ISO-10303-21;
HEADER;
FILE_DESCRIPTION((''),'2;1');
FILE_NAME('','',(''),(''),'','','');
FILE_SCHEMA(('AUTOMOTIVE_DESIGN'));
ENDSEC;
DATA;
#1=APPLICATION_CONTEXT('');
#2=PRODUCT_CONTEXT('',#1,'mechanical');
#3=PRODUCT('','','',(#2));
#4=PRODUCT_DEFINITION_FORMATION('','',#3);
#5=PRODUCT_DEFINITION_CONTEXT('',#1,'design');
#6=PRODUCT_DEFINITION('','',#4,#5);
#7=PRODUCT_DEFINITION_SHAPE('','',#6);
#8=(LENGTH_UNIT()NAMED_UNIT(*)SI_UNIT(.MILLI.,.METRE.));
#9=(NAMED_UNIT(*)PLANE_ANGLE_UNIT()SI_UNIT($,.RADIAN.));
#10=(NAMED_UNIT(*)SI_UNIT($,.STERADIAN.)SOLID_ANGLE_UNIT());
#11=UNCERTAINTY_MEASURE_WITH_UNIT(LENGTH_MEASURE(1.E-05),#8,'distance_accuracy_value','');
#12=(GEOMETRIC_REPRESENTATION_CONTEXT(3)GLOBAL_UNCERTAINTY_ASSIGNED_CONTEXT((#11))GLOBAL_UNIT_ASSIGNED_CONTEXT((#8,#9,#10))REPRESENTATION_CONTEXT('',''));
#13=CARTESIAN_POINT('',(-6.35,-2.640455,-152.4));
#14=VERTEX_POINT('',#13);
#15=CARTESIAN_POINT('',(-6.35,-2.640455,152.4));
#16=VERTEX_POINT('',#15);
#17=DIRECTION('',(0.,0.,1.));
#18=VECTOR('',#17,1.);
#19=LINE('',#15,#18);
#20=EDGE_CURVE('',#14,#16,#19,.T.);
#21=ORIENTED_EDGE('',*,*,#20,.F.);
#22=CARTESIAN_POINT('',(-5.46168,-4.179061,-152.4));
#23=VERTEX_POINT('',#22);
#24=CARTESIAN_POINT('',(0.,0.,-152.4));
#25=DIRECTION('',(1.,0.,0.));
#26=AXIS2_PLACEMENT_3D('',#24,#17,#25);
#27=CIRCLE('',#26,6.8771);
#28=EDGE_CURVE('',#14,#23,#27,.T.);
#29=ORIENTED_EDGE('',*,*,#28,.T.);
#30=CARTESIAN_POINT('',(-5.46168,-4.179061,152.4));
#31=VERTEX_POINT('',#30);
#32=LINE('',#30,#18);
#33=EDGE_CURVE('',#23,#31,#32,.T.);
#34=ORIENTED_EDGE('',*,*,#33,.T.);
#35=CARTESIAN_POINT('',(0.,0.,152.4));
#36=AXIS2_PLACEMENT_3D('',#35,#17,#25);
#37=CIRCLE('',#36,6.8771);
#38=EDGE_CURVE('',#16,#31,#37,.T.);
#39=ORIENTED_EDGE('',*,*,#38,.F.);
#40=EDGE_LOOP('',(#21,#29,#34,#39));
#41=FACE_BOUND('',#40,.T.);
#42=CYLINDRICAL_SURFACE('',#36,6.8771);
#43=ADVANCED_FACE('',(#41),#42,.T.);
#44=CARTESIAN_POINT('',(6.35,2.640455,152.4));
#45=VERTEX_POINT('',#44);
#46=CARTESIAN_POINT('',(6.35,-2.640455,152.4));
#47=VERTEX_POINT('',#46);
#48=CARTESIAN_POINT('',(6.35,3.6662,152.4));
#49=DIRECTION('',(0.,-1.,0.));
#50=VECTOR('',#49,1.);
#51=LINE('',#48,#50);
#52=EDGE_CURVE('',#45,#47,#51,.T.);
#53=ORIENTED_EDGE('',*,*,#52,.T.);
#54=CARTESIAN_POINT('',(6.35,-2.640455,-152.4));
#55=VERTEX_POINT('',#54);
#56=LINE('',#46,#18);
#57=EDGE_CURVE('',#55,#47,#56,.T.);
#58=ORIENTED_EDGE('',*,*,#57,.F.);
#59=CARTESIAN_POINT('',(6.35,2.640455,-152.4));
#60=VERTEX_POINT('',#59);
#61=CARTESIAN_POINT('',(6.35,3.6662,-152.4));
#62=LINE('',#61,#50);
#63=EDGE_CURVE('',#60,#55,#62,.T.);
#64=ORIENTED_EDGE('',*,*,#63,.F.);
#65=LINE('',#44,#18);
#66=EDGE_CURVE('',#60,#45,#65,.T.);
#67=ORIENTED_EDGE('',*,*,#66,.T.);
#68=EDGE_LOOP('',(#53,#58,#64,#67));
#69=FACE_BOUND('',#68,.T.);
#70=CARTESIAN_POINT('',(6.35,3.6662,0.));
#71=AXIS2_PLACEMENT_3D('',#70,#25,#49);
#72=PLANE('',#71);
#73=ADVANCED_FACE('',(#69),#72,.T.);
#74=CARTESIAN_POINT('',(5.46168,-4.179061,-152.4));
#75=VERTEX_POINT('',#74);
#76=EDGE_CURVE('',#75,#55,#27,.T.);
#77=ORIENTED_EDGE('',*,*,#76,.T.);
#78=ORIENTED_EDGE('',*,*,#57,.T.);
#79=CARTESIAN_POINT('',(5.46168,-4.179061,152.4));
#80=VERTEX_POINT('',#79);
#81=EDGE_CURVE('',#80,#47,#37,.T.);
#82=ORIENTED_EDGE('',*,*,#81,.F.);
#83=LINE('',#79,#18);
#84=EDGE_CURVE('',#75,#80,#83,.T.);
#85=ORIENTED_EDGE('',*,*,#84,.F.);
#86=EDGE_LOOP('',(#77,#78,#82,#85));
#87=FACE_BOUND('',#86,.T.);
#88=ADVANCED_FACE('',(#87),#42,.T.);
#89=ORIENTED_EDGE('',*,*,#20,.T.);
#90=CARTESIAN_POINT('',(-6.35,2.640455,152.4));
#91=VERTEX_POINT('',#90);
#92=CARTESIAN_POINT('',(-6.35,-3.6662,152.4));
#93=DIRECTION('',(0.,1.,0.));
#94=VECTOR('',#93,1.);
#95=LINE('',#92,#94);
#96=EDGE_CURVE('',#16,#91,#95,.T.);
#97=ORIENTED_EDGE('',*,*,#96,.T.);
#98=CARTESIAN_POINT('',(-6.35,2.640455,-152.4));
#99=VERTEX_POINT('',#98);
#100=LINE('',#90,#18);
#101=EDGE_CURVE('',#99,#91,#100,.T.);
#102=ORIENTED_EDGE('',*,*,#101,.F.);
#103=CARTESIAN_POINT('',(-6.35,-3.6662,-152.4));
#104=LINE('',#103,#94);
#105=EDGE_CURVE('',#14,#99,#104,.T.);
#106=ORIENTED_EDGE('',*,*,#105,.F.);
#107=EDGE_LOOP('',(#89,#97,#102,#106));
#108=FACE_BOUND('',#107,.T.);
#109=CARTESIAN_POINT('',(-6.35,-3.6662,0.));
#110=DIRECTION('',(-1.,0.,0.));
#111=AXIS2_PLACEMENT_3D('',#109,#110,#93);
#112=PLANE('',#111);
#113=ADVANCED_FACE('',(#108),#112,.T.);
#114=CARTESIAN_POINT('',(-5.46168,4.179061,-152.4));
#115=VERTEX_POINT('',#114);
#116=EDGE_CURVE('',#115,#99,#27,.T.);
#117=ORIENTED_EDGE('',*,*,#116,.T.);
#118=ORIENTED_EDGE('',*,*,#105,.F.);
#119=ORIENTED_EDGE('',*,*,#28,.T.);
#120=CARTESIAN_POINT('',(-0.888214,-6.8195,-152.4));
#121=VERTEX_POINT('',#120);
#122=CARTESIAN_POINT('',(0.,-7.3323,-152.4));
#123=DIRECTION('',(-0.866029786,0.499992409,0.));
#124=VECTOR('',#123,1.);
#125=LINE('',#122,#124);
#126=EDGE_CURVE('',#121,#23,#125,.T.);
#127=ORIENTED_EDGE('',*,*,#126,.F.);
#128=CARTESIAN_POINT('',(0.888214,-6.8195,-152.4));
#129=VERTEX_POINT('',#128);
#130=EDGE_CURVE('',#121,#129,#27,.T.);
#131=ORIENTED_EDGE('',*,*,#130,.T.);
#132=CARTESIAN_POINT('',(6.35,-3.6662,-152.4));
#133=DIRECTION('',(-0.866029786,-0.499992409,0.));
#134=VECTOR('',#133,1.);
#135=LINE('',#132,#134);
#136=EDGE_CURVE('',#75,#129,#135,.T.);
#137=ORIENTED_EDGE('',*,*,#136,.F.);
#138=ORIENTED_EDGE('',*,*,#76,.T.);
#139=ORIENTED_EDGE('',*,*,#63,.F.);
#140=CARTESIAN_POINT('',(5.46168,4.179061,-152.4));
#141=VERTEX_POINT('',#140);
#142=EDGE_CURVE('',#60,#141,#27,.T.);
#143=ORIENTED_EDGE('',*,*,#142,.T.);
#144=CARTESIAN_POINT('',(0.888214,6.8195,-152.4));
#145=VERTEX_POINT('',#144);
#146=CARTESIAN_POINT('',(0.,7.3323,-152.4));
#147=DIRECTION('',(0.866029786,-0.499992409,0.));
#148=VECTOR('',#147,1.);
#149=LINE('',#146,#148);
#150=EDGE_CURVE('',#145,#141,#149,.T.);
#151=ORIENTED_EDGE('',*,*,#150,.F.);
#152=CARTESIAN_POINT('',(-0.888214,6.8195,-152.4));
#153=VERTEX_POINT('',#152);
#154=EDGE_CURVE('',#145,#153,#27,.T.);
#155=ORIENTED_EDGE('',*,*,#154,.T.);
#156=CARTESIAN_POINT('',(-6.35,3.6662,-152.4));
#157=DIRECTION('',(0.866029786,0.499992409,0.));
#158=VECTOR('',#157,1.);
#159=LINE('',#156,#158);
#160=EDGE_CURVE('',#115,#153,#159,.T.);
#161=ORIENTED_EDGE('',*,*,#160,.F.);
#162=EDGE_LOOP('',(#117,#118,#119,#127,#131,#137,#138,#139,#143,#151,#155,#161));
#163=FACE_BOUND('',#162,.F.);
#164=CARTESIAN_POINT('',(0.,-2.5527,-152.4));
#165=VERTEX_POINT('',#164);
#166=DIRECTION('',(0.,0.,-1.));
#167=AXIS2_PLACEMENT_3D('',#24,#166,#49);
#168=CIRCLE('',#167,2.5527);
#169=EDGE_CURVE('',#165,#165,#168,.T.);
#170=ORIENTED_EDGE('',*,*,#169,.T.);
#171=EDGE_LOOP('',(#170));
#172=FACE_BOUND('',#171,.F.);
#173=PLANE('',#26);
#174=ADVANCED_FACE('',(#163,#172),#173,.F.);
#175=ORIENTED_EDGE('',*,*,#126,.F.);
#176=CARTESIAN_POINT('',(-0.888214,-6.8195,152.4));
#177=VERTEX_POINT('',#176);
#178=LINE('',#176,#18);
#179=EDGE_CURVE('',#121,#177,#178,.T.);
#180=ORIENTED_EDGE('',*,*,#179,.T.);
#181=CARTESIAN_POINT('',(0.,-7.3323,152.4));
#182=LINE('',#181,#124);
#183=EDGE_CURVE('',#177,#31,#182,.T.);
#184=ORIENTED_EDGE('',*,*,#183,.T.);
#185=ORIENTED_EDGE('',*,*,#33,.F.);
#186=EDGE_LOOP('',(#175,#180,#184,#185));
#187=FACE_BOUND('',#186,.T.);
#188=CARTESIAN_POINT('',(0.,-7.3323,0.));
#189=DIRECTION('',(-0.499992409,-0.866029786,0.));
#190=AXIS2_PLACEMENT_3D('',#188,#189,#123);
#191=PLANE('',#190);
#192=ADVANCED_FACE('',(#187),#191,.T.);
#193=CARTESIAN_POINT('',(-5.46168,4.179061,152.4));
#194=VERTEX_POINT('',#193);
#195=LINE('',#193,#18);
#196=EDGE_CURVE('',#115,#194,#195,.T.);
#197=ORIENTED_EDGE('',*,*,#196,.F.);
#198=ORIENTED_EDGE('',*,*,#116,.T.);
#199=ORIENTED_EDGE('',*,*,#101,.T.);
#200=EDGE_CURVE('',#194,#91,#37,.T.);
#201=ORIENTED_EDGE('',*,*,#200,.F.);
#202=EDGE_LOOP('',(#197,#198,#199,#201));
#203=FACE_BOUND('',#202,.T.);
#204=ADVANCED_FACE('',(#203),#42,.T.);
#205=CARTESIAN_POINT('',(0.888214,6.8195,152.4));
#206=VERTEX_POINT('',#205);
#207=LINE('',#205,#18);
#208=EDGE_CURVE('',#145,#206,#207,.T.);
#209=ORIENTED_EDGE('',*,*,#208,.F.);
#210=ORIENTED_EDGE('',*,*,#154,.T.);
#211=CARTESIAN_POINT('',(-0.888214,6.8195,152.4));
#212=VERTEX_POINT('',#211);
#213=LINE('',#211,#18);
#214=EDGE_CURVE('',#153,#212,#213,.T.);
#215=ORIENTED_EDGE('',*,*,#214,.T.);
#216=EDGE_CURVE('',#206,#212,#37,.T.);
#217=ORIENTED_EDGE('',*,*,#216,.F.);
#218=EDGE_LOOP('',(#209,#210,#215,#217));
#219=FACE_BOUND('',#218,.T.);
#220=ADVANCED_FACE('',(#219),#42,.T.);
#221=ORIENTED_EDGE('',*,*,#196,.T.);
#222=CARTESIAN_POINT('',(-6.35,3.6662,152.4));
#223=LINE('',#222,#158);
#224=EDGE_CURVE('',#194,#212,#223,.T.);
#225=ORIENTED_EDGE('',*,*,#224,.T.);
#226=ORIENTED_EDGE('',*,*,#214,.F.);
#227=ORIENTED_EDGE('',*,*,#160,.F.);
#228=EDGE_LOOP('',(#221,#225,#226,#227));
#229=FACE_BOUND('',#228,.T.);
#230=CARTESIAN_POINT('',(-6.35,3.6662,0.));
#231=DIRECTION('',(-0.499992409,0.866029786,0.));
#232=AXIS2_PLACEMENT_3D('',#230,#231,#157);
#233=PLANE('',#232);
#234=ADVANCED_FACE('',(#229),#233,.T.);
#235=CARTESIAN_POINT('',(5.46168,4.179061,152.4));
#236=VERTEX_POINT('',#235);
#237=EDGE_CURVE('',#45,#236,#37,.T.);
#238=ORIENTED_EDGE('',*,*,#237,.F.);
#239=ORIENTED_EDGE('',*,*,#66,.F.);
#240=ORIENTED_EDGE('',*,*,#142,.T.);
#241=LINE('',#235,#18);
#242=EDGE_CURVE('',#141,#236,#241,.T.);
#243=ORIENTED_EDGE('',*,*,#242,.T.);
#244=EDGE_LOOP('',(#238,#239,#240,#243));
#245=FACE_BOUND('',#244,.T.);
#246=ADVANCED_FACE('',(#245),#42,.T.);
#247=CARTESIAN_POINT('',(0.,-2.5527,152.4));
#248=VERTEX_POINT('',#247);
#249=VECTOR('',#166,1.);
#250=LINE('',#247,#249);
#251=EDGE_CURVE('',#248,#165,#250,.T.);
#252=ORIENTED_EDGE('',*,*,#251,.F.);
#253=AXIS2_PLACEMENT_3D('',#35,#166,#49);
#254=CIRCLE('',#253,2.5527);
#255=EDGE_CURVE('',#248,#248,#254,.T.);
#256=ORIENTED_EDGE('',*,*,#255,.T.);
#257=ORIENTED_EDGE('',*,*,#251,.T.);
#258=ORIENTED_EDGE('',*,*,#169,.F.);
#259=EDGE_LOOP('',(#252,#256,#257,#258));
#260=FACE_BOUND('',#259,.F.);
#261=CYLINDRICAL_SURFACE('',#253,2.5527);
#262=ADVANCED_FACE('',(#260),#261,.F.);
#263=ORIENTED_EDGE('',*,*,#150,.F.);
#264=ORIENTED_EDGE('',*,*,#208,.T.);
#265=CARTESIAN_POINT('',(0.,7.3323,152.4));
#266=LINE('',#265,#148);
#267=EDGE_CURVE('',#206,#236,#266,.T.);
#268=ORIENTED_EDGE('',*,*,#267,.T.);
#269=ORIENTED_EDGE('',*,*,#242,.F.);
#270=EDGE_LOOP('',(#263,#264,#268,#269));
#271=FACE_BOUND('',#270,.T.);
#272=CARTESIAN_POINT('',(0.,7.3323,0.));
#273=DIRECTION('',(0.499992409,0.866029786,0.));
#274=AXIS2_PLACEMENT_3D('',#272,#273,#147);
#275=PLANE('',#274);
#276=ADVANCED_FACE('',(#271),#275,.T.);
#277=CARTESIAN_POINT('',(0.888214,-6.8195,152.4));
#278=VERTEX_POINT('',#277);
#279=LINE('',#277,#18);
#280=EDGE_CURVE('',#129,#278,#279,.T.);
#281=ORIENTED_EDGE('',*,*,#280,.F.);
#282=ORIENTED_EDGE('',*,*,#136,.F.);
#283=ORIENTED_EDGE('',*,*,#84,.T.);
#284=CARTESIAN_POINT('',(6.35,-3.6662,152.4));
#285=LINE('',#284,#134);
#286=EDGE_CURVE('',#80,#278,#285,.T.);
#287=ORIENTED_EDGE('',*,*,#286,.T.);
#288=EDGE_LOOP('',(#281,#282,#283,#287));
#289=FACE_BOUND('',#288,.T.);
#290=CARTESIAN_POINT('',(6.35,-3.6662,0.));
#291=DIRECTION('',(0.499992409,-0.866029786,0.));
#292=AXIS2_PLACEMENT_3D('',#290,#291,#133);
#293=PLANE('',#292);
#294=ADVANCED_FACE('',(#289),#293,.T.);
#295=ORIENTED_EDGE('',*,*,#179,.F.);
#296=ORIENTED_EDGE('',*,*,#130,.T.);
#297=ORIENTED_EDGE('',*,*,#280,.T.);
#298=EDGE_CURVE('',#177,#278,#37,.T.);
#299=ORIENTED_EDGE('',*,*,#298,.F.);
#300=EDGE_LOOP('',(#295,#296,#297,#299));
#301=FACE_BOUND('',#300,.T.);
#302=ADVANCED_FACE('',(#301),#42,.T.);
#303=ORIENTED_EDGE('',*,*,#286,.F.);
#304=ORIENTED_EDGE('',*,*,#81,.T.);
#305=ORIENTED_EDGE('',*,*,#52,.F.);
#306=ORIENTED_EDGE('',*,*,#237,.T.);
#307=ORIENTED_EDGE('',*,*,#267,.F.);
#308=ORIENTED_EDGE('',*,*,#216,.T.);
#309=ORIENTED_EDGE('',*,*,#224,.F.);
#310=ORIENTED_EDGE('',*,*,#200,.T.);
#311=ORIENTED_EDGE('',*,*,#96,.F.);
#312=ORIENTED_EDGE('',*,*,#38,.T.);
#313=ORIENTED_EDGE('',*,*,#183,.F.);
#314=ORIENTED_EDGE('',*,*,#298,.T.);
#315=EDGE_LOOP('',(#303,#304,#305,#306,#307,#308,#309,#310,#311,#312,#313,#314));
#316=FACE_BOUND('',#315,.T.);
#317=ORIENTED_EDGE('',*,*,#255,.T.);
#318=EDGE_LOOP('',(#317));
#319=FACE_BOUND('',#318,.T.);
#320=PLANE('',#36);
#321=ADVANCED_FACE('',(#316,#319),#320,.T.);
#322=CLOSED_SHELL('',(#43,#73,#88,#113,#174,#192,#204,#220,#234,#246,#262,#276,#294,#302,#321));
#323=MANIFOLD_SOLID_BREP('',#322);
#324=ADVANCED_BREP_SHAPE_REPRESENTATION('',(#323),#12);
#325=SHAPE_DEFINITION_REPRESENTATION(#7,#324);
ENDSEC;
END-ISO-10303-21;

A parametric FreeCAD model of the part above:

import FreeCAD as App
import Part
import Sketcher
Q = App.Units.Quantity


def add_polygon(sketch, points):
    """Adds a closed chain of lines whose ends are joined by coincident constraints."""
    first, n = sketch.GeometryCount, len(points)
    for a, b in zip(points, points[1:] + points[:1]):
        sketch.addGeometry(Part.LineSegment(App.Vector(*a, 0), App.Vector(*b, 0)), False)
    for i in range(n):
        sketch.addConstraint(Sketcher.Constraint("Coincident", first + i, 2, first + (i + 1) % n, 1))

doc = App.newDocument("Part")
body = doc.addObject("PartDesign::Body", "Body")

# Sketch on XY plane
sketch1 = body.newObject("Sketcher::SketchObject", "Sketch")
sketch1.AttachmentSupport = (doc.getObject("XY_Plane"), [""])
sketch1.MapMode = "FlatFace"
add_polygon(sketch1, [(-6, 4), (-6, -4), (0, -7), (6, -4), (6, 4), (0, 7)])  # lines 0-5
sketch1.addConstraint([
    Sketcher.Constraint("Vertical", 0),
    Sketcher.Constraint("Vertical", 3),
    Sketcher.Constraint("Symmetric", 0, 2, 3, 2, -1, 1),
    Sketcher.Constraint("Symmetric", 1, 2, 4, 2, -1, 1),
    Sketcher.Constraint("PointOnObject", 1, 2, -2),
    Sketcher.Constraint("Parallel", 2, 5),
    Sketcher.Constraint("Horizontal", 0, 2, 2, 2),
    Sketcher.Constraint("DistanceX", 0, 2, 2, 2, Q("0.5 in")),
    Sketcher.Constraint("Angle", 1, Q("-29.9995 deg")),
    Sketcher.Constraint("DistanceY", 1, 2, 3, 2, Q("0.433 in")),
])
pad1 = body.newObject("PartDesign::Pad", "Pad")
pad1.Profile = sketch1
pad1.Length = Q("12 in")
pad1.Midplane = True

# Sketch on XY plane
sketch2 = body.newObject("Sketcher::SketchObject", "Sketch001")
sketch2.AttachmentSupport = (doc.getObject("XY_Plane"), [""])
sketch2.MapMode = "FlatFace"
sketch2.AttachmentOffset = App.Placement(App.Vector(0, 0, 6 * 25.4), App.Rotation())
sketch2.addGeometry(Part.Circle(App.Vector(0, 0, 0), App.Vector(0, 0, 1), 2.6), False)
sketch2.addConstraint([
    Sketcher.Constraint("Coincident", 0, 3, -1, 1),
    Sketcher.Constraint("Diameter", 0, Q("0.201 in")),
])
doc.recompute()
hole = body.newObject("PartDesign::Hole", "Hole")
hole.Profile = sketch2
hole.ThreadType = "None"
hole.Diameter = Q("0.201 in")
hole.DepthType = "ThroughAll"

# Sketch on XY plane
sketch3 = body.newObject("Sketcher::SketchObject", "Sketch002")
sketch3.AttachmentSupport = (doc.getObject("XY_Plane"), [""])
sketch3.MapMode = "FlatFace"
sketch3.AttachmentOffset = App.Placement(App.Vector(0, 0, 6 * 25.4), App.Rotation())
sketch3.addGeometry([
    Part.Circle(App.Vector(0, 0, 0), App.Vector(0, 0, 1), 9),
    Part.Circle(App.Vector(0, 0, 0), App.Vector(0, 0, 1), 7),
], False)
sketch3.addConstraint([
    Sketcher.Constraint("Coincident", 0, 3, -1, 1),
    Sketcher.Constraint("Coincident", 1, 3, -1, 1),
    Sketcher.Constraint("Diameter", 0, Q("0.7 in")),
    Sketcher.Constraint("Diameter", 1, Q("0.5415 in")),
])
pocket1 = body.newObject("PartDesign::Pocket", "Pocket")
pocket1.Profile = sketch3
pocket1.Type = "ThroughAll"

doc.recompute()
